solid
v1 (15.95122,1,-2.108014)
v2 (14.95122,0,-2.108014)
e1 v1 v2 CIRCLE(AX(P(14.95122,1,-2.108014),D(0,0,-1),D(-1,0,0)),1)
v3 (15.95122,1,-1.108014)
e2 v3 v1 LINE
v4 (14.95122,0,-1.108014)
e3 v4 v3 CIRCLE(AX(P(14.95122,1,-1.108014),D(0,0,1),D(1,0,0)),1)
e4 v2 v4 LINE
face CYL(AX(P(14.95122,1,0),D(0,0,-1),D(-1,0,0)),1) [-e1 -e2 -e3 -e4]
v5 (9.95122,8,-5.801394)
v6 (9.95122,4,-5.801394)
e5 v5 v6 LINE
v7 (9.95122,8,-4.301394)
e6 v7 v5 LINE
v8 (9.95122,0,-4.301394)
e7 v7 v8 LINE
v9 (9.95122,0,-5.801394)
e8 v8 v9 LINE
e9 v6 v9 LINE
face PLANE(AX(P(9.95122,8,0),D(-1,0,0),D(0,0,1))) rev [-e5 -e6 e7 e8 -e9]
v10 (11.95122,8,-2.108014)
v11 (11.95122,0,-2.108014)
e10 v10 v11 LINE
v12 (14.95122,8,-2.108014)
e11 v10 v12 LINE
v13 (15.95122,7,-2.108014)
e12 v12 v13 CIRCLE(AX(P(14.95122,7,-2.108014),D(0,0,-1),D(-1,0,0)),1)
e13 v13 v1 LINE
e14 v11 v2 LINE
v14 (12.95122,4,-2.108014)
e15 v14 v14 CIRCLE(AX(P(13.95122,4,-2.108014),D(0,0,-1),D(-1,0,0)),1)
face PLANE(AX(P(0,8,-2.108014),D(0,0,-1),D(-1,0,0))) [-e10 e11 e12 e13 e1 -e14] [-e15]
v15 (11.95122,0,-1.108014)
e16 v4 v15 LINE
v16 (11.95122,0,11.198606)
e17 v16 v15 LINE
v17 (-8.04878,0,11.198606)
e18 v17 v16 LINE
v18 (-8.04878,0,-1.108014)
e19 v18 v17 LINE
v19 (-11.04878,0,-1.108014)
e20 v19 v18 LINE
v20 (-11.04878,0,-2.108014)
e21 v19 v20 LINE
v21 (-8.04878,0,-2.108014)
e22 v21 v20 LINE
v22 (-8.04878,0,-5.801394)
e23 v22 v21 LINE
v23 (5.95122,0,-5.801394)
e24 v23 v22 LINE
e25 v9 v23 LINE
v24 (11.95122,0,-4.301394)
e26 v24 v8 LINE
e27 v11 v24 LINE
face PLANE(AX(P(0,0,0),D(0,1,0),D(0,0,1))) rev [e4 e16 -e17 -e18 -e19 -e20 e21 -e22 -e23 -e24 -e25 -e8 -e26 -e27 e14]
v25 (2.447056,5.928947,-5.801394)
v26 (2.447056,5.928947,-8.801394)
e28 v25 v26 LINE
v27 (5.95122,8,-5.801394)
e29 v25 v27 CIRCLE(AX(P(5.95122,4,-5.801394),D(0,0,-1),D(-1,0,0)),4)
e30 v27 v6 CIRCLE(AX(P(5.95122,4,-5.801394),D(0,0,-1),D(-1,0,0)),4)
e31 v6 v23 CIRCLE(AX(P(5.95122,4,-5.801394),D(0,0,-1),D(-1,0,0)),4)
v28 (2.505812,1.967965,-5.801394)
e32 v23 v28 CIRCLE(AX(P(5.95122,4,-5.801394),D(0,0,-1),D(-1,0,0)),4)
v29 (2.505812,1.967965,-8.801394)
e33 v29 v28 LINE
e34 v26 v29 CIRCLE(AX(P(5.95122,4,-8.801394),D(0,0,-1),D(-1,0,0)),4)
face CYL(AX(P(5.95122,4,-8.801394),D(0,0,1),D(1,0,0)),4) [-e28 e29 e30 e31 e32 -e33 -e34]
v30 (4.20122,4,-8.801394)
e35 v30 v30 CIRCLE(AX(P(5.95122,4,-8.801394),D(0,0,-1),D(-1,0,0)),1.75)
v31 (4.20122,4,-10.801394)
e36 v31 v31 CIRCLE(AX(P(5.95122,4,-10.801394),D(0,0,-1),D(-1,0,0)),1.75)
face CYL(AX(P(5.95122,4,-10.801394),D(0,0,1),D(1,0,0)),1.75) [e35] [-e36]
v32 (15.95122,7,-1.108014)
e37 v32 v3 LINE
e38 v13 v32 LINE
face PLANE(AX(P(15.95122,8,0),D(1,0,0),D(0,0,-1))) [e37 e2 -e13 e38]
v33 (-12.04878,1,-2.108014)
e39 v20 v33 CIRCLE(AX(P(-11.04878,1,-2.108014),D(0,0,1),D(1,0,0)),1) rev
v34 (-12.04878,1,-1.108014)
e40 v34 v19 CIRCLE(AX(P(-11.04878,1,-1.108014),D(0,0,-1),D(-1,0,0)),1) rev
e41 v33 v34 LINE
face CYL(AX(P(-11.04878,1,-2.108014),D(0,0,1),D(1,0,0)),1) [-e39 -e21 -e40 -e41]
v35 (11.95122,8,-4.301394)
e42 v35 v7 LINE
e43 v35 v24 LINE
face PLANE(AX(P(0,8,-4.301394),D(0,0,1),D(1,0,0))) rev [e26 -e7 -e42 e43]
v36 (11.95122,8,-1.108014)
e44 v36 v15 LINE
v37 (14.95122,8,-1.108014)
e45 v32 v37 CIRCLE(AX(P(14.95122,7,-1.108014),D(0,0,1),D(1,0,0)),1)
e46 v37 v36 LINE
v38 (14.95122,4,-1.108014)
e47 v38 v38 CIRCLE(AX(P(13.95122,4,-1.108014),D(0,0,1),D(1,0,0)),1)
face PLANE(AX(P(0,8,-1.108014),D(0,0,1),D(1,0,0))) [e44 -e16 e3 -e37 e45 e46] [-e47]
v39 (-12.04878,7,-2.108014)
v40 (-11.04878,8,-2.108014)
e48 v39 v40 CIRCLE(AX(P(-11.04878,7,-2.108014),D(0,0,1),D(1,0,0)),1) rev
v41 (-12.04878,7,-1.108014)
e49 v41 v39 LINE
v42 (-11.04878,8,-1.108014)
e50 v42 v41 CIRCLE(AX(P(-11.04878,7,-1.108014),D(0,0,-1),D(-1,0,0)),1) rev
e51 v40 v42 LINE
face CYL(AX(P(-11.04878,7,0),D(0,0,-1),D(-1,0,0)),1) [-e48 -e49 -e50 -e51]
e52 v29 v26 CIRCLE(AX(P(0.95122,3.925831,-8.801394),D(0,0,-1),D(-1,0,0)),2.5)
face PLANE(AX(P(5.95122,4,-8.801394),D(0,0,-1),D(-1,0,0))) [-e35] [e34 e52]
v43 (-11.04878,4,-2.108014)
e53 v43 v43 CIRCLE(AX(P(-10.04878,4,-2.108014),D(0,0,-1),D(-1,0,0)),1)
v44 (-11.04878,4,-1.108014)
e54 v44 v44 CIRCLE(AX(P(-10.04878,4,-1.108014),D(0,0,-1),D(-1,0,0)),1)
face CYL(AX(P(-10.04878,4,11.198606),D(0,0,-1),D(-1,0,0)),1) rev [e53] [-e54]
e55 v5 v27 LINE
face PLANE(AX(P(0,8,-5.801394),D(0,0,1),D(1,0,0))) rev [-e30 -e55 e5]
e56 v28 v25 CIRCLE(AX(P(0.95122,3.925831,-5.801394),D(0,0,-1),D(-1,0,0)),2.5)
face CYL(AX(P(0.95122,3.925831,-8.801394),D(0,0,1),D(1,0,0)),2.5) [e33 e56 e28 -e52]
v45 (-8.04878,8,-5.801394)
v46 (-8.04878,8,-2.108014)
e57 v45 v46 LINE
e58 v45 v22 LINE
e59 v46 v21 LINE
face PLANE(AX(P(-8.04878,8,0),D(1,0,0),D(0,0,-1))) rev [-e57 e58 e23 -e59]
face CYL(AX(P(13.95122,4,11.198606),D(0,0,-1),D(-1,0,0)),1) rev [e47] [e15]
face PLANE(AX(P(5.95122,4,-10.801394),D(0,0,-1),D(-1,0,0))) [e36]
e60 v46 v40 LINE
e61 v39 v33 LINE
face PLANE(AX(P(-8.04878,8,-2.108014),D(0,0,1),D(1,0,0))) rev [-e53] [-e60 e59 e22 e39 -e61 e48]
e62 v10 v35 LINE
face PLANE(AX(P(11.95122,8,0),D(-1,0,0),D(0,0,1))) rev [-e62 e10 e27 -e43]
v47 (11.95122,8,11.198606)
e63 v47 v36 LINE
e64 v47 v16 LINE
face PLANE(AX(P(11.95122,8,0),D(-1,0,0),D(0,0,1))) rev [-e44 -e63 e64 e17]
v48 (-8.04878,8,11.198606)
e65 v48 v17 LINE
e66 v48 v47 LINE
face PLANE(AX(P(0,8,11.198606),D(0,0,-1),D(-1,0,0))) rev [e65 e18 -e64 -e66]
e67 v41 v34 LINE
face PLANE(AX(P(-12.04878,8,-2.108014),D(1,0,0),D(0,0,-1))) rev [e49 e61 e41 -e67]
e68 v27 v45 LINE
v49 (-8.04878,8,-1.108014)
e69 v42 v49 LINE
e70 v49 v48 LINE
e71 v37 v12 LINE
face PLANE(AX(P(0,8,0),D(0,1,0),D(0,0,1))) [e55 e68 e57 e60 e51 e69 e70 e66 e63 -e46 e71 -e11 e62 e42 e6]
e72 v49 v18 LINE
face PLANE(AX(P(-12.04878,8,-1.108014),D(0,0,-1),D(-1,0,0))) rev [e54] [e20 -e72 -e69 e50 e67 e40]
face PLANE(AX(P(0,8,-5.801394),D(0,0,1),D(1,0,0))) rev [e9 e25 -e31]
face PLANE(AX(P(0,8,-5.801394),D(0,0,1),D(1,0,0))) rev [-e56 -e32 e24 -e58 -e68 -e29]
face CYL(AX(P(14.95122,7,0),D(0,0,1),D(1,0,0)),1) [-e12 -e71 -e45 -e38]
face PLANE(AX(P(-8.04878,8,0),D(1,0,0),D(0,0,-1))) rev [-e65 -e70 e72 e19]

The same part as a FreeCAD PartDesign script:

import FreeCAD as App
import Part
import Sketcher

V = App.Vector
Q = App.Units.Quantity


def edges_at(feature, points):
    """Names of the edges that pass closest to the given points."""
    edges = feature.Shape.Edges
    near = lambda p: min(range(len(edges)), key=lambda i: edges[i].distToShape(Part.Vertex(*p))[0])
    return sorted({f"Edge{near(p) + 1}" for p in points})


def add_polygon(sketch, points):
    """Adds a closed chain of lines whose ends are joined by coincident constraints."""
    first, n = sketch.GeometryCount, len(points)
    for a, b in zip(points, points[1:] + points[:1]):
        sketch.addGeometry(Part.LineSegment(App.Vector(*a, 0), App.Vector(*b, 0)), False)
    for i in range(n):
        sketch.addConstraint(Sketcher.Constraint("Coincident", first + i, 2, first + (i + 1) % n, 1))

doc = App.newDocument("Part")
params = doc.addObject("Spreadsheet::Sheet", "Params")
for row, (alias, value) in enumerate([
    ("sketch1_width", "18 mm"),
    ("sketch1_width2", "4 mm"),
    ("sketch1_width3", "20 mm"),
    ("sketch1_height", "1 mm"),
    ("sketch1_height2", "1.5 mm"),
    ("pad1_length", "8 mm"),
    ("sketch2_diameter", "8 mm"),
    ("pad2_length", "3 mm"),
    ("sketch3_diameter", "5 mm"),
    ("pad3_length", "3 mm"),
    ("sketch4_diameter", "2 mm"),
    ("fillet_radius", "1 mm"),
    ("fillet2_radius", "1 mm"),
    ("sketch5_diameter", "3.5 mm"),
    ("pad4_length", "2 mm"),
], start=1):
    params.set(f"A{row}", alias)
    params.set(f"B{row}", "=" + value)
    params.setAlias(f"B{row}", alias)

body = doc.addObject("PartDesign::Body", "Body")

sketch1 = body.newObject("Sketcher::SketchObject", "Sketch")
sketch1.AttachmentSupport = (doc.getObject("XZ_Plane"), [""])
sketch1.MapMode = "FlatFace"
add_polygon(sketch1, [(10, -4.3), (10, -5.8), (-8, -5.8), (-8, -2.1), (-12, -2.1), (-12, -1.1), (-8, -1.1), (-8, 11.2), (12, 11.2), (12, -1.1), (16, -1.1), (16, -2.1), (12, -2.1), (12, -4.3)])
sketch1.addConstraint(Sketcher.Constraint("Vertical", 0))
sketch1.addConstraint(Sketcher.Constraint("Horizontal", 1))
sketch1.addConstraint(Sketcher.Constraint("Vertical", 2))
sketch1.addConstraint(Sketcher.Constraint("Horizontal", 3))
sketch1.addConstraint(Sketcher.Constraint("Vertical", 4))
sketch1.addConstraint(Sketcher.Constraint("Horizontal", 5))
sketch1.addConstraint(Sketcher.Constraint("Vertical", 6))
sketch1.addConstraint(Sketcher.Constraint("Horizontal", 7))
sketch1.addConstraint(Sketcher.Constraint("Vertical", 8))
sketch1.addConstraint(Sketcher.Constraint("Horizontal", 9))
sketch1.addConstraint(Sketcher.Constraint("Vertical", 10))
sketch1.addConstraint(Sketcher.Constraint("Horizontal", 11))
sketch1.addConstraint(Sketcher.Constraint("Vertical", 12))
sketch1.addConstraint(Sketcher.Constraint("Horizontal", 13))
sketch1.addConstraint(Sketcher.Constraint("Horizontal", 5, 2, 8, 2))
sketch1.addConstraint(Sketcher.Constraint("Horizontal", 3, 2, 10, 2))
sketch1.addConstraint(Sketcher.Constraint("Vertical", 2, 2, 5, 2))
sketch1.addConstraint(Sketcher.Constraint("Vertical", 8, 2, 11, 2))
sketch1.addConstraint(Sketcher.Constraint("Equal", 5, 9))
sketch1.addConstraint(Sketcher.Constraint("DistanceX", 1, 2, 1, 1, Q("18 mm")))
sketch1.addConstraint(Sketcher.Constraint("DistanceX", 3, 2, 3, 1, Q("4 mm")))
sketch1.addConstraint(Sketcher.Constraint("DistanceX", 7, 1, 7, 2, Q("20 mm")))
sketch1.addConstraint(Sketcher.Constraint("DistanceY", 4, 1, 4, 2, Q("1 mm")))
sketch1.addConstraint(Sketcher.Constraint("DistanceY", 0, 2, 0, 1, Q("1.5 mm")))
sketch1.addConstraint(Sketcher.Constraint("DistanceY", 1, 2, 6, 2, Q("17 mm")))
sketch1.addConstraint(Sketcher.Constraint("DistanceY", 2, 1, 2, 2, Q("3.69338 mm")))
sketch1.addConstraint(Sketcher.Constraint("DistanceX", -1, 1, 0, 2, Q("9.95122 mm")))
sketch1.addConstraint(Sketcher.Constraint("DistanceY", 0, 2, -1, 1, Q("5.801394 mm")))
sketch1.setExpression("Constraints[33]", "Params.sketch1_width")
sketch1.setExpression("Constraints[34]", "Params.sketch1_width2")
sketch1.setExpression("Constraints[35]", "Params.sketch1_width3")
sketch1.setExpression("Constraints[36]", "Params.sketch1_height")
sketch1.setExpression("Constraints[37]", "Params.sketch1_height2")
pad1 = body.newObject("PartDesign::Pad", "Pad")
pad1.Profile = sketch1
pad1.setExpression("Length", "Params.pad1_length")
pad1.Reversed = True

sketch2 = body.newObject("Sketcher::SketchObject", "Sketch001")
sketch2.AttachmentSupport = (doc.getObject("XY_Plane"), [""])
sketch2.MapMode = "FlatFace"
sketch2.AttachmentOffset = App.Placement(V(0, 0, -5.801394), App.Rotation())
sketch2.addGeometry(Part.Circle(V(6, 4, 0), V(0, 0, 1), 4), False)
sketch2.addConstraint(Sketcher.Constraint("Diameter", 0, Q("8 mm")))
sketch2.addConstraint(Sketcher.Constraint("DistanceY", -1, 1, 0, 3, Q("4 mm")))
sketch2.addConstraint(Sketcher.Constraint("DistanceX", -1, 1, 0, 3, Q("5.95122 mm")))
sketch2.setExpression("Constraints[0]", "Params.sketch2_diameter")
pad2 = body.newObject("PartDesign::Pad", "Pad001")
pad2.Profile = sketch2
pad2.setExpression("Length", "Params.pad2_length")
pad2.Reversed = True

sketch3 = body.newObject("Sketcher::SketchObject", "Sketch002")
sketch3.AttachmentSupport = (doc.getObject("XY_Plane"), [""])
sketch3.MapMode = "FlatFace"
sketch3.AttachmentOffset = App.Placement(V(0, 0, -5.801394), App.Rotation())
sketch3.addGeometry(Part.Circle(V(1, 3.9, 0), V(0, 0, 1), 2.5), False)
sketch3.addConstraint(Sketcher.Constraint("Diameter", 0, Q("5 mm")))
sketch3.addConstraint(Sketcher.Constraint("DistanceX", -1, 1, 0, 3, Q("0.95122 mm")))
sketch3.addConstraint(Sketcher.Constraint("DistanceY", -1, 1, 0, 3, Q("3.925831 mm")))
sketch3.setExpression("Constraints[0]", "Params.sketch3_diameter")
pad3 = body.newObject("PartDesign::Pad", "Pad002")
pad3.Profile = sketch3
pad3.setExpression("Length", "Params.pad3_length")
pad3.Reversed = True

sketch4 = body.newObject("Sketcher::SketchObject", "Sketch003")
sketch4.AttachmentSupport = (doc.getObject("XY_Plane"), [""])
sketch4.MapMode = "FlatFace"
sketch4.AttachmentOffset = App.Placement(V(0, 0, -2.108014), App.Rotation())
sketch4.addGeometry(Part.Circle(V(14, 4, 0), V(0, 0, 1), 1), False)
sketch4.addGeometry(Part.Circle(V(-10, 4, 0), V(0, 0, 1), 1), False)
sketch4.addConstraint(Sketcher.Constraint("Equal", 0, 1))
sketch4.addConstraint(Sketcher.Constraint("Horizontal", 0, 3, 1, 3))
sketch4.addConstraint(Sketcher.Constraint("Diameter", 0, Q("2 mm")))
sketch4.addConstraint(Sketcher.Constraint("DistanceY", -1, 1, 0, 3, Q("4 mm")))
sketch4.addConstraint(Sketcher.Constraint("DistanceX", 1, 3, 0, 3, Q("24 mm")))
sketch4.addConstraint(Sketcher.Constraint("DistanceX", -1, 1, 0, 3, Q("13.95122 mm")))
sketch4.setExpression("Constraints[2]", "Params.sketch4_diameter")
pocket1 = body.newObject("PartDesign::Pocket", "Pocket")
pocket1.Profile = sketch4
pocket1.Type = "ThroughAll"
pocket1.Reversed = True
doc.recompute()

fillet = body.newObject("PartDesign::Fillet", "Fillet")
fillet.Base = (pocket1, edges_at(pocket1, [(15.951, 8, -1.608)]))
fillet.setExpression("Radius", "Params.fillet_radius")
doc.recompute()

fillet2 = body.newObject("PartDesign::Fillet", "Fillet001")
fillet2.Base = (fillet, edges_at(fillet, [(15.951, 0, -1.608), (-12.049, 8, -1.608), (-12.049, 0, -1.608)]))
fillet2.setExpression("Radius", "Params.fillet2_radius")

sketch5 = body.newObject("Sketcher::SketchObject", "Sketch004")
sketch5.AttachmentSupport = (doc.getObject("XY_Plane"), [""])
sketch5.MapMode = "FlatFace"
sketch5.AttachmentOffset = App.Placement(V(0, 0, -8.801394), App.Rotation())
sketch5.addGeometry(Part.Circle(V(6, 4, 0), V(0, 0, 1), 1.8), False)
sketch5.addConstraint(Sketcher.Constraint("Diameter", 0, Q("3.5 mm")))
sketch5.addConstraint(Sketcher.Constraint("DistanceY", -1, 1, 0, 3, Q("4 mm")))
sketch5.addConstraint(Sketcher.Constraint("DistanceX", -1, 1, 0, 3, Q("5.95122 mm")))
sketch5.setExpression("Constraints[0]", "Params.sketch5_diameter")
pad4 = body.newObject("PartDesign::Pad", "Pad003")
pad4.Profile = sketch5
pad4.setExpression("Length", "Params.pad4_length")
pad4.Reversed = True

doc.recompute()
